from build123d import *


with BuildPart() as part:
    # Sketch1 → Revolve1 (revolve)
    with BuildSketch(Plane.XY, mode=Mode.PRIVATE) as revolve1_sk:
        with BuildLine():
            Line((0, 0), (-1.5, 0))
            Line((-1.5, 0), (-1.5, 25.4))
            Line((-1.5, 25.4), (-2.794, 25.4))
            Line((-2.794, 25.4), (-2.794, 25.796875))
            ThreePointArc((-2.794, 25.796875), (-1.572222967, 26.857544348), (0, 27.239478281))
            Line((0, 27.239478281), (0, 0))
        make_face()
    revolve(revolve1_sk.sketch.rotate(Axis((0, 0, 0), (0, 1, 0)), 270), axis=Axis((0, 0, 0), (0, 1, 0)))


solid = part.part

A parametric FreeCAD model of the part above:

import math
import FreeCAD as App
import Part
import Sketcher
Q = App.Units.Quantity

doc = App.newDocument("Part")
body = doc.addObject("PartDesign::Body", "Body")

# Sketch on XY plane
sketch1 = body.newObject("Sketcher::SketchObject", "Sketch")
sketch1.AttachmentSupport = (doc.getObject("XY_Plane"), [""])
sketch1.MapMode = "FlatFace"
sketch1.addGeometry([
    Part.LineSegment(App.Vector(-1.5, 0, 0), App.Vector(0, 0, 0)),  # 0
    Part.LineSegment(App.Vector(0, 0, 0), App.Vector(0, 27.239478, 0)),  # 1
    Part.ArcOfCircle(Part.Circle(App.Vector(0, 23.8125, 0), App.Vector(0, 0, 1), 3.426978), math.radians(90), math.radians(144.616592)),  # 2
    Part.LineSegment(App.Vector(-2.794, 25.796875, 0), App.Vector(-2.794, 25.4, 0)),  # 3
    Part.LineSegment(App.Vector(-2.794, 25.4, 0), App.Vector(-1.5, 25.4, 0)),  # 4
    Part.LineSegment(App.Vector(-1.5, 25.4, 0), App.Vector(-1.5, 0, 0)),  # 5
], False)
sketch1.addConstraint([
    Sketcher.Constraint("Coincident", 0, 2, 1, 1),
    Sketcher.Constraint("Coincident", 1, 2, 2, 1),
    Sketcher.Constraint("Coincident", 2, 2, 3, 1),
    Sketcher.Constraint("Coincident", 3, 2, 4, 1),
    Sketcher.Constraint("Coincident", 4, 2, 5, 1),
    Sketcher.Constraint("Coincident", 5, 2, 0, 1),
    Sketcher.Constraint("Horizontal", 0),
    Sketcher.Constraint("Vertical", 1),
    Sketcher.Constraint("Vertical", 3),
    Sketcher.Constraint("Horizontal", 4),
    Sketcher.Constraint("Vertical", 5),
    Sketcher.Constraint("Coincident", 0, 2, -1, 1),
    Sketcher.Constraint("PointOnObject", 2, 3, -2),
    Sketcher.Constraint("DistanceY", 5, 2, 5, 1, Q("1 in")),
    Sketcher.Constraint("DistanceY", 3, 2, 3, 1, Q("0.015625 in")),
    Sketcher.Constraint("DistanceX", 2, 2, -1, 1, Q("0.11 in")),
    Sketcher.Constraint("DistanceY", -1, 1, 2, 3, Q("0.9375 in")),
    Sketcher.Constraint("DistanceX", 0, 1, 0, 2, Q("1.5 mm")),
])
revolution = body.newObject("PartDesign::Revolution", "Revolution")
revolution.Profile = sketch1
revolution.ReferenceAxis = (sketch1, ["V_Axis"])
revolution.Angle = 360

doc.recompute()
